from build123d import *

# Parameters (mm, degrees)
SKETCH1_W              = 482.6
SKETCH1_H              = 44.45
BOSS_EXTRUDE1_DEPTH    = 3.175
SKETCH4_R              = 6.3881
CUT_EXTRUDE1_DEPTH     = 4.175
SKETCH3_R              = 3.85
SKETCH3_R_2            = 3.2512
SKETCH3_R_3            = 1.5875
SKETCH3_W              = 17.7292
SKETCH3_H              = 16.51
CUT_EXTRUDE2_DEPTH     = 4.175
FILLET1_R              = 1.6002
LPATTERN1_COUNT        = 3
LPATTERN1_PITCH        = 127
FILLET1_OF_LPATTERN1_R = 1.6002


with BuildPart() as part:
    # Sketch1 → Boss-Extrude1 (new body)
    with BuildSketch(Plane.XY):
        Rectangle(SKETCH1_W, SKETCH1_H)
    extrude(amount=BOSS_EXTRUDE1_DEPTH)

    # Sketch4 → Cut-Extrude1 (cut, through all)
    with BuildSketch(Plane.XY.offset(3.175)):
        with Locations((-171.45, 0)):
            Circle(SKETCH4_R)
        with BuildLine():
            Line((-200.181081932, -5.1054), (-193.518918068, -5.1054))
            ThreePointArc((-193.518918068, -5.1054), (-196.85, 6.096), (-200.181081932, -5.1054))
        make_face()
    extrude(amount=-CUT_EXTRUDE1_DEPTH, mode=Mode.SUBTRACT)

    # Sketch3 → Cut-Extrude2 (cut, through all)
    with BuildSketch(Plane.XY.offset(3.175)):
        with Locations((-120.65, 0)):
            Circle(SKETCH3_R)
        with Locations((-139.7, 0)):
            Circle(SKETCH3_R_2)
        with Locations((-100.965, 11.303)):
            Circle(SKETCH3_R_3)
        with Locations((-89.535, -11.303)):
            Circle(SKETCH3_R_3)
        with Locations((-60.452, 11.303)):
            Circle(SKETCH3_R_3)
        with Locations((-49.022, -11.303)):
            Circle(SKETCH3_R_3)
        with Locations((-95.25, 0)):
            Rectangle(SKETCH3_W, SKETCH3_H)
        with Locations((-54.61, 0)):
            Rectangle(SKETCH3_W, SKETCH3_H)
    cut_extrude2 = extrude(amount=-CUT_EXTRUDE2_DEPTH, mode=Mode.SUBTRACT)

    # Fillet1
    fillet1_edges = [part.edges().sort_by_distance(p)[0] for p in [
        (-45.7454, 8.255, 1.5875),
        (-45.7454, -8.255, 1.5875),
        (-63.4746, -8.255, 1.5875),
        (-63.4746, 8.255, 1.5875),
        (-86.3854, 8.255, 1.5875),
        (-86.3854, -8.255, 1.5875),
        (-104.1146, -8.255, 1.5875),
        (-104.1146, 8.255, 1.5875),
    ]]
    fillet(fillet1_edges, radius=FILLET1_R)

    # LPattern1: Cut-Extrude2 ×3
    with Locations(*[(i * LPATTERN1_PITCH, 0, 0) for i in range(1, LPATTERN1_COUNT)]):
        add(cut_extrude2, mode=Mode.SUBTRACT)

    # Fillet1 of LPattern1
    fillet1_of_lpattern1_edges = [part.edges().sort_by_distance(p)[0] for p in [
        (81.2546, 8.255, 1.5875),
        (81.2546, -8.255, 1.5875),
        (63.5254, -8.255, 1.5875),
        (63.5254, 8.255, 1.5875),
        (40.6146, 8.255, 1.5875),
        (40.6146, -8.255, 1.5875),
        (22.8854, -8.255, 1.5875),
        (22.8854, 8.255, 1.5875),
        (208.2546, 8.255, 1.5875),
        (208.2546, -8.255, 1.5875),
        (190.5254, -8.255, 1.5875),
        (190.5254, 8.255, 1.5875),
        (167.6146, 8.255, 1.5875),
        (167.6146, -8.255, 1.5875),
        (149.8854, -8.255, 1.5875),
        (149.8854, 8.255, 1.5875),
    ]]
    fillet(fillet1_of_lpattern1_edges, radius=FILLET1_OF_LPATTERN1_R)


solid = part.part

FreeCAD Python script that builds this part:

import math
import FreeCAD as App
import Part
import Sketcher
from FreeCAD import Vector
Q = App.Units.Quantity


def edges_at(feature, points):
    """Names of the edges that pass closest to the given points."""
    edges = feature.Shape.Edges
    near = lambda p: min(range(len(edges)), key=lambda i: edges[i].distToShape(Part.Vertex(*p))[0])
    return sorted({f"Edge{near(p) + 1}" for p in points})


def add_polygon(sketch, points):
    """Adds a closed chain of lines whose ends are joined by coincident constraints."""
    first, n = sketch.GeometryCount, len(points)
    for a, b in zip(points, points[1:] + points[:1]):
        sketch.addGeometry(Part.LineSegment(App.Vector(*a, 0), App.Vector(*b, 0)), False)
    for i in range(n):
        sketch.addConstraint(Sketcher.Constraint("Coincident", first + i, 2, first + (i + 1) % n, 1))

doc = App.newDocument("Part")
body = doc.addObject("PartDesign::Body", "Body")

# Sketch on XY plane
sketch1 = doc.addObject("Sketcher::SketchObject", "Sketch")
body.addObject(sketch1)
sketch1.AttachmentSupport = (doc.XY_Plane, [""])
sketch1.MapMode = "FlatFace"
add_polygon(sketch1, [(-241.3, 22.225), (-241.3, -22.225), (241.3, -22.225), (241.3, 22.225)])  # lines 0-3
sketch1.addConstraint([
    Sketcher.Constraint("Vertical", 0),
    Sketcher.Constraint("Horizontal", 1),
    Sketcher.Constraint("Vertical", 2),
    Sketcher.Constraint("Horizontal", 3),
    Sketcher.Constraint("Symmetric", 0, 2, 2, 2, -1, 1),
    Sketcher.Constraint("DistanceX", 1, 1, 1, 2, Q("19 in")),
    Sketcher.Constraint("DistanceY", 0, 2, 0, 1, Q("1.75 in")),
])
pad1 = doc.addObject("PartDesign::Pad", "Pad")
body.addObject(pad1)
pad1.Profile = sketch1
pad1.Length = Q("0.125 in")

# Sketch on XY plane
sketch2 = doc.addObject("Sketcher::SketchObject", "Sketch001")
body.addObject(sketch2)
sketch2.AttachmentSupport = (doc.XY_Plane, [""])
sketch2.MapMode = "FlatFace"
sketch2.AttachmentOffset = App.Placement(Vector(0, 0, 0.125 * 25.4), App.Rotation())
sketch2.addGeometry([
    Part.Circle(Vector(-171.45, 0, 0), Vector(0, 0, 1), 6.3881),
    Part.LineSegment(Vector(-200.181082, -5.1054, 0), Vector(-193.518918, -5.1054, 0)),
    Part.ArcOfCircle(Part.Circle(Vector(-196.85, 0, 0), Vector(0, 0, 1), 6.096), math.radians(-56.87706), math.radians(236.87706)),
], False)
sketch2.addConstraint([
    Sketcher.Constraint("Coincident", 1, 1, 2, 2),
    Sketcher.Constraint("Coincident", 2, 1, 1, 2),
    Sketcher.Constraint("Horizontal", 1),
    Sketcher.Constraint("PointOnObject", 0, 3, -1),
    Sketcher.Constraint("PointOnObject", 2, 3, -1),
    Sketcher.Constraint("Radius", 2, Q("0.24 in")),
    Sketcher.Constraint("Diameter", 0, Q("0.503 in")),
    Sketcher.Constraint("DistanceX", 2, 3, 0, 3, Q("1 in")),
    Sketcher.Constraint("DistanceX", 0, 3, -1, 1, Q("6.75 in")),
    Sketcher.Constraint("DistanceY", 1, 1, -1, 1, Q("0.201 in")),
])
pocket1 = doc.addObject("PartDesign::Pocket", "Pocket")
body.addObject(pocket1)
pocket1.Profile = sketch2
pocket1.Type = "ThroughAll"

# Sketch on XY plane
sketch3 = doc.addObject("Sketcher::SketchObject", "Sketch002")
body.addObject(sketch3)
sketch3.AttachmentSupport = (doc.XY_Plane, [""])
sketch3.MapMode = "FlatFace"
sketch3.AttachmentOffset = App.Placement(Vector(0, 0, 0.125 * 25.4), App.Rotation())
sketch3.addGeometry(Part.Circle(Vector(-120.65, 0, 0), Vector(0, 0, 1), 3.85), False)  # 0
sketch3.addGeometry(Part.Circle(Vector(-139.7, 0, 0), Vector(0, 0, 1), 3.2512), False)  # 1
sketch3.addGeometry(Part.Circle(Vector(-100.965, 11.303, 0), Vector(0, 0, 1), 1.5875), False)  # 2
sketch3.addGeometry(Part.Circle(Vector(-89.535, -11.303, 0), Vector(0, 0, 1), 1.5875), False)  # 3
sketch3.addGeometry(Part.Circle(Vector(-60.452, 11.303, 0), Vector(0, 0, 1), 1.5875), False)  # 4
sketch3.addGeometry(Part.Circle(Vector(-49.022, -11.303, 0), Vector(0, 0, 1), 1.5875), False)  # 5
add_polygon(sketch3, [(-104.1146, 8.255), (-104.1146, -8.255), (-86.3854, -8.255), (-86.3854, 8.255)])  # lines 6-9
add_polygon(sketch3, [(-63.4746, 8.255), (-63.4746, -8.255), (-45.7454, -8.255), (-45.7454, 8.255)])  # lines 10-13
sketch3.addConstraint([
    Sketcher.Constraint("Vertical", 6),
    Sketcher.Constraint("Horizontal", 7),
    Sketcher.Constraint("Vertical", 8),
    Sketcher.Constraint("Horizontal", 9),
    Sketcher.Constraint("Vertical", 10),
    Sketcher.Constraint("Horizontal", 11),
    Sketcher.Constraint("Vertical", 12),
    Sketcher.Constraint("Horizontal", 13),
    Sketcher.Constraint("Equal", 2, 3),
    Sketcher.Constraint("Equal", 3, 4),
    Sketcher.Constraint("Equal", 4, 5),
    Sketcher.Constraint("PointOnObject", 0, 3, -1),
    Sketcher.Constraint("PointOnObject", 1, 3, -1),
    Sketcher.Constraint("Horizontal", 2, 3, 4, 3),
    Sketcher.Constraint("Horizontal", 3, 3, 5, 3),
    Sketcher.Constraint("Horizontal", 7, 2, 10, 2),
    Sketcher.Constraint("Horizontal", 9, 2, 12, 2),
    Sketcher.Constraint("Equal", 9, 11),
    Sketcher.Constraint("Diameter", 1, Q("0.256 in")),
    Sketcher.Constraint("Diameter", 2, Q("0.125 in")),
    Sketcher.Constraint("DistanceY", 6, 2, 6, 1, Q("0.65 in")),
    Sketcher.Constraint("DistanceX", 1, 3, -1, 1, Q("5.5 in")),
    Sketcher.Constraint("DistanceX", 7, 2, 11, 2, Q("1.6 in")),
    Sketcher.Constraint("Diameter", 0, 7.7),
    Sketcher.Constraint("DistanceX", 7, 1, 7, 2, Q("0.698 in")),
    Sketcher.Constraint("DistanceX", 0, 3, -1, 1, Q("4.75 in")),
    Sketcher.Constraint("DistanceX", 4, 3, -1, 1, Q("2.38 in")),
    Sketcher.Constraint("DistanceX", 5, 3, -1, 1, Q("1.93 in")),
    Sketcher.Constraint("DistanceX", 2, 3, 3, 3, Q("0.45 in")),
    Sketcher.Constraint("DistanceY", 3, 3, 2, 3, Q("0.89 in")),
    Sketcher.Constraint("DistanceY", 3, 3, 6, 2, Q("0.12 in")),
    Sketcher.Constraint("DistanceX", 2, 3, -1, 1, Q("3.975 in")),
    Sketcher.Constraint("DistanceY", -1, 1, 2, 3, Q("0.445 in")),
    Sketcher.Constraint("DistanceX", 6, 2, -1, 1, Q("4.099 in")),
])
pocket2 = doc.addObject("PartDesign::Pocket", "Pocket001")
body.addObject(pocket2)
pocket2.Profile = sketch3
pocket2.Type = "ThroughAll"
doc.recompute()

fillet = doc.addObject("PartDesign::Fillet", "Fillet")
body.addObject(fillet)
fillet.Base = (pocket2, edges_at(pocket2, [
    (-45.745, 8.255, 1.587),
    (-45.745, -8.255, 1.587),
    (-63.475, -8.255, 1.587),
    (-63.475, 8.255, 1.587),
    (-86.385, 8.255, 1.587),
    (-86.385, -8.255, 1.587),
    (-104.115, -8.255, 1.587),
    (-104.115, 8.255, 1.587),
]))
fillet.Radius = Q("0.063 in")
doc.recompute()

linearpattern = doc.addObject("PartDesign::LinearPattern", "LinearPattern")
body.addObject(linearpattern)
linearpattern.Originals = [pocket2]
linearpattern.Direction = (doc.X_Axis, [""])
linearpattern.Mode = "offset"
linearpattern.Offset = Q("5 in")
linearpattern.Occurrences = 3
body.Tip = linearpattern
doc.recompute()

fillet2 = doc.addObject("PartDesign::Fillet", "Fillet001")
body.addObject(fillet2)
fillet2.Base = (linearpattern, edges_at(linearpattern, [
    (81.255, 8.255, 1.587),
    (81.255, -8.255, 1.587),
    (63.525, -8.255, 1.587),
    (63.525, 8.255, 1.587),
    (40.615, 8.255, 1.587),
    (40.615, -8.255, 1.587),
    (22.885, -8.255, 1.587),
    (22.885, 8.255, 1.587),
    (208.255, 8.255, 1.587),
    (208.255, -8.255, 1.587),
    (190.525, -8.255, 1.587),
    (190.525, 8.255, 1.587),
    (167.615, 8.255, 1.587),
    (167.615, -8.255, 1.587),
    (149.885, -8.255, 1.587),
    (149.885, 8.255, 1.587),
]))
fillet2.Radius = Q("0.063 in")

doc.recompute()
